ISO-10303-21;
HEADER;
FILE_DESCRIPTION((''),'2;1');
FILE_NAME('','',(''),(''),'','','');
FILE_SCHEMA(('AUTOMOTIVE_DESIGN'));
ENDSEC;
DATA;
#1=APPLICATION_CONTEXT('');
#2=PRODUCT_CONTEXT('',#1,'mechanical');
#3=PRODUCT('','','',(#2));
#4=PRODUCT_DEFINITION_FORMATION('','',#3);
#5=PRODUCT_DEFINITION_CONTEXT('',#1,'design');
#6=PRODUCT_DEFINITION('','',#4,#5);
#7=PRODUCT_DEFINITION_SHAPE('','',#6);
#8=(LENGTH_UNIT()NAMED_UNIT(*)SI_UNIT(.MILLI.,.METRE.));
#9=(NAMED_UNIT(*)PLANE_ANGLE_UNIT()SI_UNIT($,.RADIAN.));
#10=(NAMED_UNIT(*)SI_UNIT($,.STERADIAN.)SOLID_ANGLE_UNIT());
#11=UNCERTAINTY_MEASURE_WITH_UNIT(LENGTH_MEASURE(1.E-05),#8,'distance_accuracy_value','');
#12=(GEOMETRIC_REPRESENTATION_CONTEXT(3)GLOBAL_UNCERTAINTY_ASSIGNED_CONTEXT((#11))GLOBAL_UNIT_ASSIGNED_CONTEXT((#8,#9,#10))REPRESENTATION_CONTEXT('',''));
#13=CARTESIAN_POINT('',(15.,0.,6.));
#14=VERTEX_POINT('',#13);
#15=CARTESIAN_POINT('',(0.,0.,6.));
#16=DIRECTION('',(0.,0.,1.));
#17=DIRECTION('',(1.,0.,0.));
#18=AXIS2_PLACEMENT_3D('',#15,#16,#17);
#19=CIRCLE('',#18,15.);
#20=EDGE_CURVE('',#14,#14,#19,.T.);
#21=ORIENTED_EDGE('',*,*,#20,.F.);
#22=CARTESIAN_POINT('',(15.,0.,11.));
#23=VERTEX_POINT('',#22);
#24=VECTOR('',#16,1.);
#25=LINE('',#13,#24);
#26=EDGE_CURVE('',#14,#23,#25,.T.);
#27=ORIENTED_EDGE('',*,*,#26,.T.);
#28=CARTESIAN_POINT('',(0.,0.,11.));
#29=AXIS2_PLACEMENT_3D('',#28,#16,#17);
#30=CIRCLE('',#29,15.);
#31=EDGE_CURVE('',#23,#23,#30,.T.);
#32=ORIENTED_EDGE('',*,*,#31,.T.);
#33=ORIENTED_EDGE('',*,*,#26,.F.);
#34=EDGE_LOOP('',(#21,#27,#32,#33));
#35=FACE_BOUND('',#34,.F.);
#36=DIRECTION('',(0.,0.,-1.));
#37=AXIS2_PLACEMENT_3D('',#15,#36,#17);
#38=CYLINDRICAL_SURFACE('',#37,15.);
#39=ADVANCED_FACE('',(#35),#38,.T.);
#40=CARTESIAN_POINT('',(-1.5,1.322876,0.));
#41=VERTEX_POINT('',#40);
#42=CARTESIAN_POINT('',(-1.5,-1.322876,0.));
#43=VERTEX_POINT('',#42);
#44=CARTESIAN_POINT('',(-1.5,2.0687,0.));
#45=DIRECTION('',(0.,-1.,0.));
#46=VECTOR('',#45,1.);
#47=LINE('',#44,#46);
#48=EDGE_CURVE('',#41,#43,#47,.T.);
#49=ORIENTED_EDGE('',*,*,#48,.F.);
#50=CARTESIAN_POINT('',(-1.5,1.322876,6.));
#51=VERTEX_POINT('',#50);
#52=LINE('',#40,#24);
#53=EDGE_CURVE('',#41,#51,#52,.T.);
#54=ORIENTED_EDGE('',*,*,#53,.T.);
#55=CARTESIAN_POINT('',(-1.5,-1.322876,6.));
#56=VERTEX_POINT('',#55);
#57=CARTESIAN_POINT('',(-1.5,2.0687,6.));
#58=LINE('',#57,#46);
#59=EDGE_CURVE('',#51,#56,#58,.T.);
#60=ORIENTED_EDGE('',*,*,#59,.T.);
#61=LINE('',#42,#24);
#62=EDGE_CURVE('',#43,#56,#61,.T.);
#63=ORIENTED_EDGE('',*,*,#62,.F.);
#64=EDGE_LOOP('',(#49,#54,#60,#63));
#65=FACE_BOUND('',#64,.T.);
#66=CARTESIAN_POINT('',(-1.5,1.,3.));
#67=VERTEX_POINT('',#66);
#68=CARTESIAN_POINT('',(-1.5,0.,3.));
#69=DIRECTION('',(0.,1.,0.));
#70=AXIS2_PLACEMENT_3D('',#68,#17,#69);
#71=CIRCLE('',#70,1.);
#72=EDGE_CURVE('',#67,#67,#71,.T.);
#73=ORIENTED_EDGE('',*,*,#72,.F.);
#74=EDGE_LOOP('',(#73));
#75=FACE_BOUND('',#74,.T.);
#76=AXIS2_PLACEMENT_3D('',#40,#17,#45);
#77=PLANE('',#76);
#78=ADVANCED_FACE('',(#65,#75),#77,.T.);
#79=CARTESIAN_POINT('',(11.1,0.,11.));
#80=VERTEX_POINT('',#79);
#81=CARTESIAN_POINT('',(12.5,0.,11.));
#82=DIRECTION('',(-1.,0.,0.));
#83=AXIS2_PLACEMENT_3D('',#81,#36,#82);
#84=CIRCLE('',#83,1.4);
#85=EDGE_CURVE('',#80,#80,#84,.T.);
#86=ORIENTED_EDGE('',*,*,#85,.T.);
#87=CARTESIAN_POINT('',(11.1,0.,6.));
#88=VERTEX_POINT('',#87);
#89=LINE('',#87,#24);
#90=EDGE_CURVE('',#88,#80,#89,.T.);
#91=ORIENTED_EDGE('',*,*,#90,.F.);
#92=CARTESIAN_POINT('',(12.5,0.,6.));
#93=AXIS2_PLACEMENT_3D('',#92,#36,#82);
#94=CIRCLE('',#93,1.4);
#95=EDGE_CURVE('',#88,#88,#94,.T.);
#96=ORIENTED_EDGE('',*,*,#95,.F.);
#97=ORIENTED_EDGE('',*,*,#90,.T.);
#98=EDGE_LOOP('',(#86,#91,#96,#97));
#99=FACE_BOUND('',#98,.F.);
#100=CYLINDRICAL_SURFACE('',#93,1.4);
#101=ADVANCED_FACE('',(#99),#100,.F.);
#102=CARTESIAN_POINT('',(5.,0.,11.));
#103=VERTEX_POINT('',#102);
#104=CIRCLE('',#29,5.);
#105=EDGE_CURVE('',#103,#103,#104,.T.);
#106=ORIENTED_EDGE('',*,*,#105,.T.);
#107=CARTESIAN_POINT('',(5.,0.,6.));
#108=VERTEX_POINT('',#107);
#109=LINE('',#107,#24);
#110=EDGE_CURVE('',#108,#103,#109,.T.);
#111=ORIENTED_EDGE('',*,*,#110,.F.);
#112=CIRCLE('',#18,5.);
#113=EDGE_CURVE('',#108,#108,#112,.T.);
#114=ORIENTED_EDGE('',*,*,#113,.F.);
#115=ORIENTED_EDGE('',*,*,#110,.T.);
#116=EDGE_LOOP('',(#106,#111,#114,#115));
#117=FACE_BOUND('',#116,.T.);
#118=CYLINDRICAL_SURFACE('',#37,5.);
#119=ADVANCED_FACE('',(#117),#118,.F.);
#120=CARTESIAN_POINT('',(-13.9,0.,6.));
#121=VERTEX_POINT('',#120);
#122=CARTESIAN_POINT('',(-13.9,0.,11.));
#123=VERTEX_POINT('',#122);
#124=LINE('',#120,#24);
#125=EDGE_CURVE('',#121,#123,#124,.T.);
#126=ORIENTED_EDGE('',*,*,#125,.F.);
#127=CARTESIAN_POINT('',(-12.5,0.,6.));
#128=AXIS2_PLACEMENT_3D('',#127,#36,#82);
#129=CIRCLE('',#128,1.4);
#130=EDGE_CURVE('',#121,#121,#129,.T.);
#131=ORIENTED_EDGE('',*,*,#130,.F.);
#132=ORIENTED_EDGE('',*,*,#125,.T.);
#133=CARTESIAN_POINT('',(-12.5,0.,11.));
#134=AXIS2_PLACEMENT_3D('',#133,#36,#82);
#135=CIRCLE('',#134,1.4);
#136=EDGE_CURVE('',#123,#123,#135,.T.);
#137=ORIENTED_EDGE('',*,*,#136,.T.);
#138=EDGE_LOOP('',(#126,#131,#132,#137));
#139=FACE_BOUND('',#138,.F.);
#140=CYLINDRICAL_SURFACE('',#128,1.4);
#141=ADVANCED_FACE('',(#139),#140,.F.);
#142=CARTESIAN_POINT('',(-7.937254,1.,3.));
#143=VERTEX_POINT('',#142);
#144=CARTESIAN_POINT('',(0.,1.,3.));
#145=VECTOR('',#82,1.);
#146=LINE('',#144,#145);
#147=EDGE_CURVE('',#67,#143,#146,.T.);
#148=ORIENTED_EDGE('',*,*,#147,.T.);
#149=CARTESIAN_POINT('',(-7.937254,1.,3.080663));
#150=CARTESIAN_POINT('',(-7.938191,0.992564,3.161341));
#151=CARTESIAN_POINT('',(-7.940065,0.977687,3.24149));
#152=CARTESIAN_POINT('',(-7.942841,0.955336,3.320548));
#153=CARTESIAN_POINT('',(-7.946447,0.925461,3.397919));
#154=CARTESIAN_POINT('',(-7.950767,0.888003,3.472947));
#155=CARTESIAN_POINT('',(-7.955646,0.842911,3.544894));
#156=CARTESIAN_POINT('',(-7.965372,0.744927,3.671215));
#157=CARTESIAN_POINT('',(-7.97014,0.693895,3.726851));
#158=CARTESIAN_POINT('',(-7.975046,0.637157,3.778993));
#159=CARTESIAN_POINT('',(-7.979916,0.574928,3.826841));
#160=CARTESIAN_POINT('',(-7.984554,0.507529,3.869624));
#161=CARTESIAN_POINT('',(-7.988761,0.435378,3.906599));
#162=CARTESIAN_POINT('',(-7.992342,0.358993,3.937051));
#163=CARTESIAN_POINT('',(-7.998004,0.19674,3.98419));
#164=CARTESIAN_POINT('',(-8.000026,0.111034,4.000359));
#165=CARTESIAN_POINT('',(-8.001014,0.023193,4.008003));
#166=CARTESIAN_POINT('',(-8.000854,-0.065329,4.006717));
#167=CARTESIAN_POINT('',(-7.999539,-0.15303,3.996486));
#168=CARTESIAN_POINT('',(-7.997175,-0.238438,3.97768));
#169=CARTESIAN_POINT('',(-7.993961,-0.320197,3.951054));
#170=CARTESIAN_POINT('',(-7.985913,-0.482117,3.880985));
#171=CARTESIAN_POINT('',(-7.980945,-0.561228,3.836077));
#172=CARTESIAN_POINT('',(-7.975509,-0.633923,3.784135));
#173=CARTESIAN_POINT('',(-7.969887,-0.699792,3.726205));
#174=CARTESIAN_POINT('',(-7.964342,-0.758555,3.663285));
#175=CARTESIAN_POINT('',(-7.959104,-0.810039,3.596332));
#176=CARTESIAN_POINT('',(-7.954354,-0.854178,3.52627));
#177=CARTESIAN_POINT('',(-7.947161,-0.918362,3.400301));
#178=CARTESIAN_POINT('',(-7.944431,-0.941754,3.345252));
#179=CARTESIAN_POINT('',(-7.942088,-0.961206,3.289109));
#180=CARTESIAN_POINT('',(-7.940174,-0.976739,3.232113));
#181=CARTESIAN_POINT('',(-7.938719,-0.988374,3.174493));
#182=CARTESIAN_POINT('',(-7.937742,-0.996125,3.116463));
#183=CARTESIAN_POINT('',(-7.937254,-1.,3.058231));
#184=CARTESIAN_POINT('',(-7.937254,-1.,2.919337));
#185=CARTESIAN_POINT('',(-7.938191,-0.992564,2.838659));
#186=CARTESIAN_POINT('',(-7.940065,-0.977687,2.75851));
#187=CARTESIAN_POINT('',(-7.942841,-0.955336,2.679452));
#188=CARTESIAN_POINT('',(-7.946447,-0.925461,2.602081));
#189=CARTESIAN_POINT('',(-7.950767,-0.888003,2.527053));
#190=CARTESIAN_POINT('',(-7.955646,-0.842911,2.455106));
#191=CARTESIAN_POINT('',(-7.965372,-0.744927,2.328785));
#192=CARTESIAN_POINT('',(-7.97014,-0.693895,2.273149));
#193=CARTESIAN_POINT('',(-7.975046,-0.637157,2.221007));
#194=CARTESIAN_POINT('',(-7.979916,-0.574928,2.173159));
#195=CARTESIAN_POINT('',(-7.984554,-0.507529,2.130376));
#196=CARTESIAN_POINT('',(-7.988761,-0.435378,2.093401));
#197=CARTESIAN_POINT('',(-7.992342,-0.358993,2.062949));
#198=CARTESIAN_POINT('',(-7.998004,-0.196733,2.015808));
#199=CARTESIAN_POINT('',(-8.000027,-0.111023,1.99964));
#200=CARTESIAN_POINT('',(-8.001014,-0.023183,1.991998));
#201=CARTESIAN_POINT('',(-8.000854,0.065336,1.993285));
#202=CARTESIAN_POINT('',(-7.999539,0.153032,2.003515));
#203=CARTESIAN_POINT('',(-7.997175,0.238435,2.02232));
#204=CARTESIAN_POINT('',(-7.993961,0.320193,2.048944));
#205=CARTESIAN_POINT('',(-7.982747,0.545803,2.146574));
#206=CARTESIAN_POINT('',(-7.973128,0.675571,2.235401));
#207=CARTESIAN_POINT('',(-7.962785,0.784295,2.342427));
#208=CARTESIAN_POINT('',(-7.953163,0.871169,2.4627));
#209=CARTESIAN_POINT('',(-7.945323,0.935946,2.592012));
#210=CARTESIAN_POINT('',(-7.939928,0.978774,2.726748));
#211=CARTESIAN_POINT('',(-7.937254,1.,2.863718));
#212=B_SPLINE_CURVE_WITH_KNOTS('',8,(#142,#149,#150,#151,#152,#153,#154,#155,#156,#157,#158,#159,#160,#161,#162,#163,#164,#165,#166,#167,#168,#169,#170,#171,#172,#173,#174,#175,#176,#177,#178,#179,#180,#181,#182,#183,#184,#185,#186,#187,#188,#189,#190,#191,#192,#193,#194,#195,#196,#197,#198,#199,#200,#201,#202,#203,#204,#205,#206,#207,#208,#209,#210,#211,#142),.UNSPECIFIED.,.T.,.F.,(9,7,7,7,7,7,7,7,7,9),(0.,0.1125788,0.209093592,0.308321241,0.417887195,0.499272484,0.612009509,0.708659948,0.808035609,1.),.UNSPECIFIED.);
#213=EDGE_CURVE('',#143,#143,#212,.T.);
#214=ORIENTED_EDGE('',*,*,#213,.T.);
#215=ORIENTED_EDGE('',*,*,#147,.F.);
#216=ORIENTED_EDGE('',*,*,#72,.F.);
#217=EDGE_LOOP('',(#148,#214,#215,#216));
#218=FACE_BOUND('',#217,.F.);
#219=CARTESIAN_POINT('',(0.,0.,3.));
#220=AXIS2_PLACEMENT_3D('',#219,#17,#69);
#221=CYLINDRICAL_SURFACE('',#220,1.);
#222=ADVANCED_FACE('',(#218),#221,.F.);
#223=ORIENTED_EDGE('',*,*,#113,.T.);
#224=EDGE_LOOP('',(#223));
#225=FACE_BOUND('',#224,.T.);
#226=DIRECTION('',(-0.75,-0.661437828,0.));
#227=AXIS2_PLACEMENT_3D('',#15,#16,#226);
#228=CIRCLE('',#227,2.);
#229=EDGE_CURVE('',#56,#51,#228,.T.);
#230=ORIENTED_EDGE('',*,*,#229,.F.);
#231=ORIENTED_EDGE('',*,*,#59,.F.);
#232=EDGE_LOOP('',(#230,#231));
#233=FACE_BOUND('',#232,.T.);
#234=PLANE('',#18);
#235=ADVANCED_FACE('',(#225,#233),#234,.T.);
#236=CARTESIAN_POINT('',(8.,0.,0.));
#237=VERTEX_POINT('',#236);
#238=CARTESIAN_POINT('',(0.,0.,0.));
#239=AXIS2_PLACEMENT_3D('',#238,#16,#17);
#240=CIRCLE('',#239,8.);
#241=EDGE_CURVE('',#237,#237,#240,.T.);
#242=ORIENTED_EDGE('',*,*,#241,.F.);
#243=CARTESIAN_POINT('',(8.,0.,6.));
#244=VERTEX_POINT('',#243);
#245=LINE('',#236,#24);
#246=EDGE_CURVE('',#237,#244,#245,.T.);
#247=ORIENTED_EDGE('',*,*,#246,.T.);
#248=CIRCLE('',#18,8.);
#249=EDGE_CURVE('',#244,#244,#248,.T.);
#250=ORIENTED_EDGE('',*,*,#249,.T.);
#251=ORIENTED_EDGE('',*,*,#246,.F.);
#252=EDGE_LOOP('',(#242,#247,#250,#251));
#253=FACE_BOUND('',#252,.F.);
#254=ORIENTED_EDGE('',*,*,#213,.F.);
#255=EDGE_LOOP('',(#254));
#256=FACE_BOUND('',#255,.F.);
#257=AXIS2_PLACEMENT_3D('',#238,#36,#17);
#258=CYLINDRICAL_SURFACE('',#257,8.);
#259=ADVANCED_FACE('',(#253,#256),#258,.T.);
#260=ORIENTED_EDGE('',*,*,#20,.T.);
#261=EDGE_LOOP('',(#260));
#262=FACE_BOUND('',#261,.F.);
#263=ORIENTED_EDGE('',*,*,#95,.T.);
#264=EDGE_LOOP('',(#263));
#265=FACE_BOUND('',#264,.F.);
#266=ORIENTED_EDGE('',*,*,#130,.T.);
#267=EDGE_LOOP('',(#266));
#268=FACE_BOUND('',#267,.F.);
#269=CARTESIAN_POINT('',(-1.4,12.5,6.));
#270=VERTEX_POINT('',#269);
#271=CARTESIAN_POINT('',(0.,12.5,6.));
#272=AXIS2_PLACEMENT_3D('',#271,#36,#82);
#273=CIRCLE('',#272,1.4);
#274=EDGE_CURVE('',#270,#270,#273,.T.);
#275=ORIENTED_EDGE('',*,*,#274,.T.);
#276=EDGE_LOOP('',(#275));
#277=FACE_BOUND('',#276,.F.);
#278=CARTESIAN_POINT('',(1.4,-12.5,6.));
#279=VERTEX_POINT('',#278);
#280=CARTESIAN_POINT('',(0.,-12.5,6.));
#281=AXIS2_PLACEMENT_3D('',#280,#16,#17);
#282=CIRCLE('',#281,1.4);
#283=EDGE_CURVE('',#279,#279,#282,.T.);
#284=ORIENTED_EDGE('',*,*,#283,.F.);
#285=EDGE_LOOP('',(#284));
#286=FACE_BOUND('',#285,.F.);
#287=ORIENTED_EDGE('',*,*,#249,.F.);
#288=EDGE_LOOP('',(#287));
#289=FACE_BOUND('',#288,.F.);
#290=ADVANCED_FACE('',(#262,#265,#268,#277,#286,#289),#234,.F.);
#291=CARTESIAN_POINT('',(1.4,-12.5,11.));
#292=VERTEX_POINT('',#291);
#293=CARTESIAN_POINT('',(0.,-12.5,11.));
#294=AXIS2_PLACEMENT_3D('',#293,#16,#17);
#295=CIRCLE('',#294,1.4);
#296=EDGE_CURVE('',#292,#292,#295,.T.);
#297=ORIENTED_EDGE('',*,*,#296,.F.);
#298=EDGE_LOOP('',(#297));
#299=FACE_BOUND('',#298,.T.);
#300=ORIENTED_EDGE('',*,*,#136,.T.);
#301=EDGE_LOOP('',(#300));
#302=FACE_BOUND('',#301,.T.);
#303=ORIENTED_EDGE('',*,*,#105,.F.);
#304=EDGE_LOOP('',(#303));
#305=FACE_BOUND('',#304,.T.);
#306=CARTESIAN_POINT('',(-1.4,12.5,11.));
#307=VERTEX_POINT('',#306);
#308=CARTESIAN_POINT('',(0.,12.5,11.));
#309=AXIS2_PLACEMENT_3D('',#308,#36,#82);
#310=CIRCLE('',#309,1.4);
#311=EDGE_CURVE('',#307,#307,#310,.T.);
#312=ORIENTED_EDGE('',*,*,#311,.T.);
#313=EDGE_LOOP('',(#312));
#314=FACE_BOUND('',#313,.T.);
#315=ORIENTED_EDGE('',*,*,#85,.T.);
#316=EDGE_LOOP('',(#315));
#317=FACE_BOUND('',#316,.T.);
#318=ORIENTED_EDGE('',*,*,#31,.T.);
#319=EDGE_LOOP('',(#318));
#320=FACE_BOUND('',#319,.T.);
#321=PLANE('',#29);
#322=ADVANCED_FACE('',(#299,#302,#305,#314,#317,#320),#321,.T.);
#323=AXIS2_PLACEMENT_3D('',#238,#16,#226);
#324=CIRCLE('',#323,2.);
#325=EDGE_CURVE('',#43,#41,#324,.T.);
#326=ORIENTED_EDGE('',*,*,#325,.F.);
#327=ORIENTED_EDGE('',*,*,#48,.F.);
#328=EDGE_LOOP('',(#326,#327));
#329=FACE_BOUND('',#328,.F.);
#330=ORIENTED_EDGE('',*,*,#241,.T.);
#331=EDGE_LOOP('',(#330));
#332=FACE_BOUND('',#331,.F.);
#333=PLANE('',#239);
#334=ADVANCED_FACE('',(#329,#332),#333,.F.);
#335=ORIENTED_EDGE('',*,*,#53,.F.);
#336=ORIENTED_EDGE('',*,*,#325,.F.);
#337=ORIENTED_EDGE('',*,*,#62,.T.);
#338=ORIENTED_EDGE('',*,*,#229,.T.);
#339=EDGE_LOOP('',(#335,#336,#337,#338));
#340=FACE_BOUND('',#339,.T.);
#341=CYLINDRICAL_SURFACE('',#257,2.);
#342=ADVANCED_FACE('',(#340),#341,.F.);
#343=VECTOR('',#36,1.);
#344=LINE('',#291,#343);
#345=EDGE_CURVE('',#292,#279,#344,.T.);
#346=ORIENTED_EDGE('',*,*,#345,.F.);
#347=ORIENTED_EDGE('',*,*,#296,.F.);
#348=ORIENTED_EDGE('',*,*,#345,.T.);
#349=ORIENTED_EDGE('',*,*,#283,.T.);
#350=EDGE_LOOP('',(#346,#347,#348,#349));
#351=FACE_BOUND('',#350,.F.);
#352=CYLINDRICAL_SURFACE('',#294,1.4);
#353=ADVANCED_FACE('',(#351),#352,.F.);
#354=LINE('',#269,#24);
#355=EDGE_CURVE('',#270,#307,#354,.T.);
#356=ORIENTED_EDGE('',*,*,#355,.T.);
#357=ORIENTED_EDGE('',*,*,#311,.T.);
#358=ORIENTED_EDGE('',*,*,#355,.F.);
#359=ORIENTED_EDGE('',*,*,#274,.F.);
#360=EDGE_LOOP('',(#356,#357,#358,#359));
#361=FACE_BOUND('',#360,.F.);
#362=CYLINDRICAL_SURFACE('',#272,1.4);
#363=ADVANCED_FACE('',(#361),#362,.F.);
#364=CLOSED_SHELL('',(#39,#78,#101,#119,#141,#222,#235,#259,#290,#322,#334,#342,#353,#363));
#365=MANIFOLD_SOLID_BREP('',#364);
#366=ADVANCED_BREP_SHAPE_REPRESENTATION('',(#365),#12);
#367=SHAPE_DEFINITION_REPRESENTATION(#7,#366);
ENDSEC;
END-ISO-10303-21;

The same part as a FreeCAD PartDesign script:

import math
import FreeCAD as App
import Part
import Sketcher

V = App.Vector

doc = App.newDocument("Part")
body = doc.addObject("PartDesign::Body", "Body")

# Sketch on XY plane
sketch1 = doc.addObject("Sketcher::SketchObject", "Sketch")
body.addObject(sketch1)
sketch1.AttachmentSupport = (doc.XY_Plane, [""])
sketch1.MapMode = "FlatFace"
sketch1.addGeometry([
    Part.Circle(V(0, 0, 0), V(0, 0, 1), 8),
    Part.Circle(V(0, 0, 0), V(0, 0, 1), 2),
], False)
sketch1.addConstraint([
    Sketcher.Constraint("Coincident", 0, 3, -1, 1),
    Sketcher.Constraint("Coincident", 1, 3, -1, 1),
    Sketcher.Constraint("Diameter", 0, 16.0),
    Sketcher.Constraint("Diameter", 1, 4.0),
])
pad1 = doc.addObject("PartDesign::Pad", "Pad")
body.addObject(pad1)
pad1.Profile = sketch1
pad1.Length = 6

# Sketch on XY plane
sketch2 = doc.addObject("Sketcher::SketchObject", "Sketch001")
body.addObject(sketch2)
sketch2.AttachmentSupport = (doc.XY_Plane, [""])
sketch2.MapMode = "FlatFace"
sketch2.AttachmentOffset = App.Placement(V(0, 0, 6), App.Rotation())
sketch2.addGeometry([
    Part.Circle(V(0, 0, 0), V(0, 0, 1), 15),
    Part.Circle(V(0, 0, 0), V(0, 0, 1), 5),
], False)
sketch2.addConstraint([
    Sketcher.Constraint("Coincident", 0, 3, -1, 1),
    Sketcher.Constraint("Coincident", 1, 3, -1, 1),
    Sketcher.Constraint("Diameter", 0, 30.0),
    Sketcher.Constraint("Diameter", 1, 10.0),
])
pad2 = doc.addObject("PartDesign::Pad", "Pad001")
body.addObject(pad2)
pad2.Profile = sketch2
pad2.Length = 5

# Sketch on XY plane
sketch3 = doc.addObject("Sketcher::SketchObject", "Sketch002")
body.addObject(sketch3)
sketch3.AttachmentSupport = (doc.XY_Plane, [""])
sketch3.MapMode = "FlatFace"
sketch3.AttachmentOffset = App.Placement(V(0, 0, 6), App.Rotation())
sketch3.addGeometry([
    Part.Circle(V(0, 12.5, 0), V(0, 0, 1), 1.4),
    Part.Circle(V(12.5, 0, 0), V(0, 0, 1), 1.4),
    Part.Circle(V(-12.5, 0, 0), V(0, 0, 1), 1.4),
], False)
sketch3.addConstraint([
    Sketcher.Constraint("Equal", 0, 1),
    Sketcher.Constraint("Equal", 1, 2),
    Sketcher.Constraint("Symmetric", 1, 3, 2, 3, -1, 1),
    Sketcher.Constraint("PointOnObject", 0, 3, -2),
    Sketcher.Constraint("PointOnObject", 1, 3, -1),
    Sketcher.Constraint("Diameter", 0, 2.8),
    Sketcher.Constraint("DistanceY", -1, 1, 0, 3, 12.5),
    Sketcher.Constraint("DistanceX", -1, 1, 1, 3, 12.5),
])
pocket1 = doc.addObject("PartDesign::Pocket", "Pocket")
body.addObject(pocket1)
pocket1.Profile = sketch3
pocket1.Length = 10
pocket1.Reversed = True

# Sketch on XY plane
sketch4 = doc.addObject("Sketcher::SketchObject", "Sketch003")
body.addObject(sketch4)
sketch4.AttachmentSupport = (doc.XY_Plane, [""])
sketch4.MapMode = "FlatFace"
sketch4.AttachmentOffset = App.Placement(V(0, 0, 11), App.Rotation())
sketch4.addGeometry(Part.Circle(V(0, -12.5, 0), V(0, 0, 1), 1.4), False)
sketch4.addConstraint([
    Sketcher.Constraint("PointOnObject", 0, 3, -2),
    Sketcher.Constraint("Diameter", 0, 2.8),
    Sketcher.Constraint("DistanceY", 0, 3, -1, 1, 12.5),
])
pocket2 = doc.addObject("PartDesign::Pocket", "Pocket001")
body.addObject(pocket2)
pocket2.Profile = sketch4
pocket2.Length = 10

# Sketch on XY plane
sketch5 = doc.addObject("Sketcher::SketchObject", "Sketch004")
body.addObject(sketch5)
sketch5.AttachmentSupport = (doc.XY_Plane, [""])
sketch5.MapMode = "FlatFace"
sketch5.addGeometry([
    Part.ArcOfCircle(Part.Circle(V(0, 0, 0), V(0, 0, 1), 2), math.radians(139), math.radians(221)),
    Part.LineSegment(V(-1.5, 1.3, 0), V(-1.5, -1.3, 0)),
], False)
sketch5.addConstraint([
    Sketcher.Constraint("Coincident", 0, 1, 1, 1),
    Sketcher.Constraint("Coincident", 1, 2, 0, 2),
    Sketcher.Constraint("Vertical", 1),
    Sketcher.Constraint("Coincident", 0, 3, -1, 1),
    Sketcher.Constraint("Radius", 0, 2.0),
    Sketcher.Constraint("DistanceX", 0, 1, -1, 1, 1.5),
])
pad3 = doc.addObject("PartDesign::Pad", "Pad002")
body.addObject(pad3)
pad3.Profile = sketch5
pad3.Length = 6

# Sketch on YZ plane
sketch6 = doc.addObject("Sketcher::SketchObject", "Sketch005")
body.addObject(sketch6)
sketch6.AttachmentSupport = (doc.YZ_Plane, [""])
sketch6.MapMode = "FlatFace"
sketch6.addGeometry(Part.Circle(V(0, 3, 0), V(0, 0, 1), 1), False)
sketch6.addConstraint([
    Sketcher.Constraint("PointOnObject", 0, 3, -2),
    Sketcher.Constraint("Diameter", 0, 2.0),
    Sketcher.Constraint("DistanceY", -1, 1, 0, 3, 3.0),
])
pocket3 = doc.addObject("PartDesign::Pocket", "Pocket002")
body.addObject(pocket3)
pocket3.Profile = sketch6
pocket3.Length = 10

doc.recompute()
